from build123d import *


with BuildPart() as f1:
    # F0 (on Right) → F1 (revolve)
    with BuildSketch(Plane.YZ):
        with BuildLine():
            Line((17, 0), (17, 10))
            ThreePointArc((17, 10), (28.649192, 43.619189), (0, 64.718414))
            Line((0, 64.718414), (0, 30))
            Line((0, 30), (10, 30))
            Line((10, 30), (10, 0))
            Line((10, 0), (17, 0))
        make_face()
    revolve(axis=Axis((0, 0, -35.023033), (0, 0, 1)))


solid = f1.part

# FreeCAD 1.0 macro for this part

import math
import FreeCAD as App
import Part
import Sketcher
from FreeCAD import Vector

doc = App.newDocument("Part")
body = doc.addObject("PartDesign::Body", "Body")

# Sketch on YZ plane
sketch1 = body.newObject("Sketcher::SketchObject", "Sketch")
sketch1.AttachmentSupport = (doc.getObject("YZ_Plane"), [""])
sketch1.MapMode = "FlatFace"
sketch1.addGeometry([
    Part.LineSegment(Vector(17, 0, 0), Vector(17, 10, 0)),  # 0
    Part.ArcOfCircle(Part.Circle(Vector(0, 35, 0), Vector(0, 0, 1), 30), math.radians(-55), math.radians(90)),  # 1
    Part.LineSegment(Vector(0, 65, 0), Vector(0, 30, 0)),  # 2
    Part.LineSegment(Vector(0, 30, 0), Vector(10, 30, 0)),  # 3
    Part.LineSegment(Vector(10, 30, 0), Vector(10, 0, 0)),  # 4
    Part.LineSegment(Vector(10, 0, 0), Vector(17, 0, 0)),  # 5
], False)
sketch1.addConstraint([
    Sketcher.Constraint("Coincident", 0, 2, 1, 1),
    Sketcher.Constraint("Coincident", 1, 2, 2, 1),
    Sketcher.Constraint("Coincident", 2, 2, 3, 1),
    Sketcher.Constraint("Coincident", 3, 2, 4, 1),
    Sketcher.Constraint("Coincident", 4, 2, 5, 1),
    Sketcher.Constraint("Coincident", 5, 2, 0, 1),
    Sketcher.Constraint("Vertical", 0),
    Sketcher.Constraint("Vertical", 2),
    Sketcher.Constraint("Horizontal", 3),
    Sketcher.Constraint("Vertical", 4),
    Sketcher.Constraint("Horizontal", 5),
    Sketcher.Constraint("PointOnObject", 1, 3, -2),
    Sketcher.Constraint("PointOnObject", 1, 2, -2),
    Sketcher.Constraint("PointOnObject", 4, 2, -1),
    Sketcher.Constraint("Equal", 3, 0),
    Sketcher.Constraint("Radius", 1, 30.0),
    Sketcher.Constraint("DistanceX", 3, 1, 3, 2, 10.0),
    Sketcher.Constraint("DistanceX", 5, 1, 5, 2, 7.0),
    Sketcher.Constraint("DistanceY", 4, 2, 4, 1, 30.0),
])
revolution = body.newObject("PartDesign::Revolution", "Revolution")
revolution.Profile = sketch1
revolution.ReferenceAxis = (sketch1, ["V_Axis"])
revolution.Angle = 360

doc.recompute()
